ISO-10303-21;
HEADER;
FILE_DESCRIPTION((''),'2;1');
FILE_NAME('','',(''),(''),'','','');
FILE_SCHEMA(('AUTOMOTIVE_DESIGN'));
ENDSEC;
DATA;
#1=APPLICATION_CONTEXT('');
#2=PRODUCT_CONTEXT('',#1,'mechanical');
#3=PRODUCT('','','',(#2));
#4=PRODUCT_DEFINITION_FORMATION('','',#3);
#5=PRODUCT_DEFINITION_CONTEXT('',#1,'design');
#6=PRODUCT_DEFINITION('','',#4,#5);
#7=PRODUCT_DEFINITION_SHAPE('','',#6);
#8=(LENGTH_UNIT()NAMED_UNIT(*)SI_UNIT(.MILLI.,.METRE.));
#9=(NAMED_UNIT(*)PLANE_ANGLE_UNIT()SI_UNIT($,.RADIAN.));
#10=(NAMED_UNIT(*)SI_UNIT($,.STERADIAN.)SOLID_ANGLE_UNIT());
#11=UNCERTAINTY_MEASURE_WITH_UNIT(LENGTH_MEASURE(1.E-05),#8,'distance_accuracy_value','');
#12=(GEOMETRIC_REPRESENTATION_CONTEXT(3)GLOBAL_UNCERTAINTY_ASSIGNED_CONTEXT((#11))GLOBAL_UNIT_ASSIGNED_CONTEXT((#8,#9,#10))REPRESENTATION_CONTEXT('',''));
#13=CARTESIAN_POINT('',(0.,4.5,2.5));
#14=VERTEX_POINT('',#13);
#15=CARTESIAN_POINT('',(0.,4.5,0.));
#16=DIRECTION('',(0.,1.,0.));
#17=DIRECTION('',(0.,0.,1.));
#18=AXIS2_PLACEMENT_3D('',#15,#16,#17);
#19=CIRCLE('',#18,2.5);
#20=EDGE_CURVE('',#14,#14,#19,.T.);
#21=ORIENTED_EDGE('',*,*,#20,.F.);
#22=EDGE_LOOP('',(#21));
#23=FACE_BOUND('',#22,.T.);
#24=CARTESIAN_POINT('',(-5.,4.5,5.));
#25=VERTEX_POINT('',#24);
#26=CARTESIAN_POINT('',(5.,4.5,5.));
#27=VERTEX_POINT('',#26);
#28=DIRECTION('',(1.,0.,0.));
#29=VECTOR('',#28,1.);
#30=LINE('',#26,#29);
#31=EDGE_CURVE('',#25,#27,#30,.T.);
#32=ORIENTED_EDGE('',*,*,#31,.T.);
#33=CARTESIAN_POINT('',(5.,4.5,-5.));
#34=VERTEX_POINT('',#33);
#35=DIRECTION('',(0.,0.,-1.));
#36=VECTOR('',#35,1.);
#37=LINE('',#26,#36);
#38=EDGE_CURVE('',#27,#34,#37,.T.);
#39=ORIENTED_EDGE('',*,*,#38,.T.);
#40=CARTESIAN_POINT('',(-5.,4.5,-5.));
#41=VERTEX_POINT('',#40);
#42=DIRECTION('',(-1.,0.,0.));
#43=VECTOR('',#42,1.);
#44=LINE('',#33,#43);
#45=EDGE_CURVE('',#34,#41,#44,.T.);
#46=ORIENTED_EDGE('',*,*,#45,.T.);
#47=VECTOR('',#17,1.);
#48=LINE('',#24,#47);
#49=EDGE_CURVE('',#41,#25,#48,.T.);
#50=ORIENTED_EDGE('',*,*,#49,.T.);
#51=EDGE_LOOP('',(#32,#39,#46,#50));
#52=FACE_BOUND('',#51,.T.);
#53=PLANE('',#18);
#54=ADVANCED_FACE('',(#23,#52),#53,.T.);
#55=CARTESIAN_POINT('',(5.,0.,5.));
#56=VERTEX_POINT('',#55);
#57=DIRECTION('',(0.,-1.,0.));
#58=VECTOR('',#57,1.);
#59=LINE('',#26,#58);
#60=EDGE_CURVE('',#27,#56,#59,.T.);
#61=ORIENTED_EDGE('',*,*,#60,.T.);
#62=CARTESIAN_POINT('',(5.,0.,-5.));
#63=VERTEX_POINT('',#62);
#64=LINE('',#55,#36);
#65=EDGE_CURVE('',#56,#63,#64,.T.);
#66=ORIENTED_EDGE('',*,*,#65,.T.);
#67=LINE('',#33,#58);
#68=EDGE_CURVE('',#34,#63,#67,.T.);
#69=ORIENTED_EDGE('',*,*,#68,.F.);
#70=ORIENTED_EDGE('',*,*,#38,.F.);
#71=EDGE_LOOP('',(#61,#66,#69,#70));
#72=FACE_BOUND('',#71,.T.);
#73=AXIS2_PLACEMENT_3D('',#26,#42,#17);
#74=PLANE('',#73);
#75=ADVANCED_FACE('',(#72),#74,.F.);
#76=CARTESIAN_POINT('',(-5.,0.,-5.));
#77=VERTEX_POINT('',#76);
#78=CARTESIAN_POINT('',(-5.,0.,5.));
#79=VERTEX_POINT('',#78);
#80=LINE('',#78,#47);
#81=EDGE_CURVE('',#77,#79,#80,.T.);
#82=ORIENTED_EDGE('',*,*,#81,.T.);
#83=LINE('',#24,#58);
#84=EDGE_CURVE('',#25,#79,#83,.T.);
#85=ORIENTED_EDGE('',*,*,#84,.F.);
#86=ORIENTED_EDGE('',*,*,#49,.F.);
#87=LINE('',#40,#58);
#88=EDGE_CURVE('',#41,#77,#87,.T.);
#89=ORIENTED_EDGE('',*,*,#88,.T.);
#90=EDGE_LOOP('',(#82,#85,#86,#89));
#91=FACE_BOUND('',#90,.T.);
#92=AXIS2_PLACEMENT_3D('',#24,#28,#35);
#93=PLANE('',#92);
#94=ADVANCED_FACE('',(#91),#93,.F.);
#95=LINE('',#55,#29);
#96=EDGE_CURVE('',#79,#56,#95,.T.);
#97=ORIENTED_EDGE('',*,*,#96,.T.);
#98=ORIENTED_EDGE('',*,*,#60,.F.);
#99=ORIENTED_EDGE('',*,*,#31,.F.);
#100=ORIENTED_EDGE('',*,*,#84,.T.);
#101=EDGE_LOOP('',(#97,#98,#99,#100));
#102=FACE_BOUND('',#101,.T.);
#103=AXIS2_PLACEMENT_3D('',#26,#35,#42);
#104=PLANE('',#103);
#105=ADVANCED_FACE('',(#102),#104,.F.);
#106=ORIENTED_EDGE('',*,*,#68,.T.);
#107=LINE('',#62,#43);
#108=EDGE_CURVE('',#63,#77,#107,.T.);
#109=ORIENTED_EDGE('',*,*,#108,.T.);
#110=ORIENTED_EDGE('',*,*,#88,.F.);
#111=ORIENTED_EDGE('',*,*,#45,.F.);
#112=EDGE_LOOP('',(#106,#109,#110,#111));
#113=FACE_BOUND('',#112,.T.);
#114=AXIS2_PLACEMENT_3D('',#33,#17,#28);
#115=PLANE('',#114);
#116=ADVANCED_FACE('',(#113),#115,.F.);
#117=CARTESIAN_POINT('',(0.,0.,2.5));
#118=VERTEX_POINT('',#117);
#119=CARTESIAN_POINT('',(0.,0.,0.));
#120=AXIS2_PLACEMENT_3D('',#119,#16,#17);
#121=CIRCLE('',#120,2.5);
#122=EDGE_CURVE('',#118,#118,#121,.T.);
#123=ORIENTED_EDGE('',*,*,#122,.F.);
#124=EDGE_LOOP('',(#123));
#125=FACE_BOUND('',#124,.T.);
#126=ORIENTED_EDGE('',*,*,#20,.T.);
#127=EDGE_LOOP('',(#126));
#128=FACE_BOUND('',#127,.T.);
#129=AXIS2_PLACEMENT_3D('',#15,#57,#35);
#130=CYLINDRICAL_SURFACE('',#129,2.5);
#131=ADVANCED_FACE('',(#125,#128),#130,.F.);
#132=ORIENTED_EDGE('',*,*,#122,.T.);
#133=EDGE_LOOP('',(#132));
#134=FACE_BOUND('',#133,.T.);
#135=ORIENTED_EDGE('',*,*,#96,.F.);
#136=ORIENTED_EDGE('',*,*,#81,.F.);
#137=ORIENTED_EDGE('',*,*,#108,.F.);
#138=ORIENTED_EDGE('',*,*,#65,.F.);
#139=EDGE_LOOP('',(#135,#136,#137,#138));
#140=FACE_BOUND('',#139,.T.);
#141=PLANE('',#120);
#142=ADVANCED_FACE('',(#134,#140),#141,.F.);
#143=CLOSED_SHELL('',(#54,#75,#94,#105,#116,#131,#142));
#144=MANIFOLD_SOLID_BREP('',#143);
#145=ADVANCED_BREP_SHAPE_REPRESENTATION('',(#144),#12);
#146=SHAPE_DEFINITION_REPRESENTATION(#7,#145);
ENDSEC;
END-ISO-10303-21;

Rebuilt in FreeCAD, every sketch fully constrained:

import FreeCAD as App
import Part
import Sketcher

V = App.Vector
Q = App.Units.Quantity

doc = App.newDocument("Part")
body = doc.addObject("PartDesign::Body", "Body")

# Sketch on XZ plane
sketch1 = body.newObject("Sketcher::SketchObject", "Sketch")
sketch1.AttachmentSupport = (doc.getObject("XZ_Plane"), [""])
sketch1.MapMode = "FlatFace"
sketch1.addGeometry([
    Part.LineSegment(V(-5, -5, 0), V(-5, 5, 0)),  # 0
    Part.LineSegment(V(-5, 5, 0), V(5, 5, 0)),  # 1
    Part.LineSegment(V(5, 5, 0), V(5, -5, 0)),  # 2
    Part.LineSegment(V(5, -5, 0), V(-5, -5, 0)),  # 3
    Part.Circle(V(0, 0, 0), V(0, 0, 1), 2.5),  # 4
], False)
sketch1.addConstraint([
    Sketcher.Constraint("Coincident", 0, 2, 1, 1),
    Sketcher.Constraint("Coincident", 1, 2, 2, 1),
    Sketcher.Constraint("Coincident", 2, 2, 3, 1),
    Sketcher.Constraint("Coincident", 3, 2, 0, 1),
    Sketcher.Constraint("Vertical", 0),
    Sketcher.Constraint("Horizontal", 1),
    Sketcher.Constraint("Vertical", 2),
    Sketcher.Constraint("Horizontal", 3),
    Sketcher.Constraint("Coincident", 4, 3, -1, 1),
    Sketcher.Constraint("Symmetric", 0, 2, 2, 2, -1, 1),
    Sketcher.Constraint("Equal", 3, 0),
    Sketcher.Constraint("Diameter", 4, Q("5 mm")),
    Sketcher.Constraint("DistanceX", 1, 1, 1, 2, Q("10 mm")),
])
pad1 = body.newObject("PartDesign::Pad", "Pad")
pad1.Profile = sketch1
pad1.Length = 4.5
pad1.Reversed = True

doc.recompute()
